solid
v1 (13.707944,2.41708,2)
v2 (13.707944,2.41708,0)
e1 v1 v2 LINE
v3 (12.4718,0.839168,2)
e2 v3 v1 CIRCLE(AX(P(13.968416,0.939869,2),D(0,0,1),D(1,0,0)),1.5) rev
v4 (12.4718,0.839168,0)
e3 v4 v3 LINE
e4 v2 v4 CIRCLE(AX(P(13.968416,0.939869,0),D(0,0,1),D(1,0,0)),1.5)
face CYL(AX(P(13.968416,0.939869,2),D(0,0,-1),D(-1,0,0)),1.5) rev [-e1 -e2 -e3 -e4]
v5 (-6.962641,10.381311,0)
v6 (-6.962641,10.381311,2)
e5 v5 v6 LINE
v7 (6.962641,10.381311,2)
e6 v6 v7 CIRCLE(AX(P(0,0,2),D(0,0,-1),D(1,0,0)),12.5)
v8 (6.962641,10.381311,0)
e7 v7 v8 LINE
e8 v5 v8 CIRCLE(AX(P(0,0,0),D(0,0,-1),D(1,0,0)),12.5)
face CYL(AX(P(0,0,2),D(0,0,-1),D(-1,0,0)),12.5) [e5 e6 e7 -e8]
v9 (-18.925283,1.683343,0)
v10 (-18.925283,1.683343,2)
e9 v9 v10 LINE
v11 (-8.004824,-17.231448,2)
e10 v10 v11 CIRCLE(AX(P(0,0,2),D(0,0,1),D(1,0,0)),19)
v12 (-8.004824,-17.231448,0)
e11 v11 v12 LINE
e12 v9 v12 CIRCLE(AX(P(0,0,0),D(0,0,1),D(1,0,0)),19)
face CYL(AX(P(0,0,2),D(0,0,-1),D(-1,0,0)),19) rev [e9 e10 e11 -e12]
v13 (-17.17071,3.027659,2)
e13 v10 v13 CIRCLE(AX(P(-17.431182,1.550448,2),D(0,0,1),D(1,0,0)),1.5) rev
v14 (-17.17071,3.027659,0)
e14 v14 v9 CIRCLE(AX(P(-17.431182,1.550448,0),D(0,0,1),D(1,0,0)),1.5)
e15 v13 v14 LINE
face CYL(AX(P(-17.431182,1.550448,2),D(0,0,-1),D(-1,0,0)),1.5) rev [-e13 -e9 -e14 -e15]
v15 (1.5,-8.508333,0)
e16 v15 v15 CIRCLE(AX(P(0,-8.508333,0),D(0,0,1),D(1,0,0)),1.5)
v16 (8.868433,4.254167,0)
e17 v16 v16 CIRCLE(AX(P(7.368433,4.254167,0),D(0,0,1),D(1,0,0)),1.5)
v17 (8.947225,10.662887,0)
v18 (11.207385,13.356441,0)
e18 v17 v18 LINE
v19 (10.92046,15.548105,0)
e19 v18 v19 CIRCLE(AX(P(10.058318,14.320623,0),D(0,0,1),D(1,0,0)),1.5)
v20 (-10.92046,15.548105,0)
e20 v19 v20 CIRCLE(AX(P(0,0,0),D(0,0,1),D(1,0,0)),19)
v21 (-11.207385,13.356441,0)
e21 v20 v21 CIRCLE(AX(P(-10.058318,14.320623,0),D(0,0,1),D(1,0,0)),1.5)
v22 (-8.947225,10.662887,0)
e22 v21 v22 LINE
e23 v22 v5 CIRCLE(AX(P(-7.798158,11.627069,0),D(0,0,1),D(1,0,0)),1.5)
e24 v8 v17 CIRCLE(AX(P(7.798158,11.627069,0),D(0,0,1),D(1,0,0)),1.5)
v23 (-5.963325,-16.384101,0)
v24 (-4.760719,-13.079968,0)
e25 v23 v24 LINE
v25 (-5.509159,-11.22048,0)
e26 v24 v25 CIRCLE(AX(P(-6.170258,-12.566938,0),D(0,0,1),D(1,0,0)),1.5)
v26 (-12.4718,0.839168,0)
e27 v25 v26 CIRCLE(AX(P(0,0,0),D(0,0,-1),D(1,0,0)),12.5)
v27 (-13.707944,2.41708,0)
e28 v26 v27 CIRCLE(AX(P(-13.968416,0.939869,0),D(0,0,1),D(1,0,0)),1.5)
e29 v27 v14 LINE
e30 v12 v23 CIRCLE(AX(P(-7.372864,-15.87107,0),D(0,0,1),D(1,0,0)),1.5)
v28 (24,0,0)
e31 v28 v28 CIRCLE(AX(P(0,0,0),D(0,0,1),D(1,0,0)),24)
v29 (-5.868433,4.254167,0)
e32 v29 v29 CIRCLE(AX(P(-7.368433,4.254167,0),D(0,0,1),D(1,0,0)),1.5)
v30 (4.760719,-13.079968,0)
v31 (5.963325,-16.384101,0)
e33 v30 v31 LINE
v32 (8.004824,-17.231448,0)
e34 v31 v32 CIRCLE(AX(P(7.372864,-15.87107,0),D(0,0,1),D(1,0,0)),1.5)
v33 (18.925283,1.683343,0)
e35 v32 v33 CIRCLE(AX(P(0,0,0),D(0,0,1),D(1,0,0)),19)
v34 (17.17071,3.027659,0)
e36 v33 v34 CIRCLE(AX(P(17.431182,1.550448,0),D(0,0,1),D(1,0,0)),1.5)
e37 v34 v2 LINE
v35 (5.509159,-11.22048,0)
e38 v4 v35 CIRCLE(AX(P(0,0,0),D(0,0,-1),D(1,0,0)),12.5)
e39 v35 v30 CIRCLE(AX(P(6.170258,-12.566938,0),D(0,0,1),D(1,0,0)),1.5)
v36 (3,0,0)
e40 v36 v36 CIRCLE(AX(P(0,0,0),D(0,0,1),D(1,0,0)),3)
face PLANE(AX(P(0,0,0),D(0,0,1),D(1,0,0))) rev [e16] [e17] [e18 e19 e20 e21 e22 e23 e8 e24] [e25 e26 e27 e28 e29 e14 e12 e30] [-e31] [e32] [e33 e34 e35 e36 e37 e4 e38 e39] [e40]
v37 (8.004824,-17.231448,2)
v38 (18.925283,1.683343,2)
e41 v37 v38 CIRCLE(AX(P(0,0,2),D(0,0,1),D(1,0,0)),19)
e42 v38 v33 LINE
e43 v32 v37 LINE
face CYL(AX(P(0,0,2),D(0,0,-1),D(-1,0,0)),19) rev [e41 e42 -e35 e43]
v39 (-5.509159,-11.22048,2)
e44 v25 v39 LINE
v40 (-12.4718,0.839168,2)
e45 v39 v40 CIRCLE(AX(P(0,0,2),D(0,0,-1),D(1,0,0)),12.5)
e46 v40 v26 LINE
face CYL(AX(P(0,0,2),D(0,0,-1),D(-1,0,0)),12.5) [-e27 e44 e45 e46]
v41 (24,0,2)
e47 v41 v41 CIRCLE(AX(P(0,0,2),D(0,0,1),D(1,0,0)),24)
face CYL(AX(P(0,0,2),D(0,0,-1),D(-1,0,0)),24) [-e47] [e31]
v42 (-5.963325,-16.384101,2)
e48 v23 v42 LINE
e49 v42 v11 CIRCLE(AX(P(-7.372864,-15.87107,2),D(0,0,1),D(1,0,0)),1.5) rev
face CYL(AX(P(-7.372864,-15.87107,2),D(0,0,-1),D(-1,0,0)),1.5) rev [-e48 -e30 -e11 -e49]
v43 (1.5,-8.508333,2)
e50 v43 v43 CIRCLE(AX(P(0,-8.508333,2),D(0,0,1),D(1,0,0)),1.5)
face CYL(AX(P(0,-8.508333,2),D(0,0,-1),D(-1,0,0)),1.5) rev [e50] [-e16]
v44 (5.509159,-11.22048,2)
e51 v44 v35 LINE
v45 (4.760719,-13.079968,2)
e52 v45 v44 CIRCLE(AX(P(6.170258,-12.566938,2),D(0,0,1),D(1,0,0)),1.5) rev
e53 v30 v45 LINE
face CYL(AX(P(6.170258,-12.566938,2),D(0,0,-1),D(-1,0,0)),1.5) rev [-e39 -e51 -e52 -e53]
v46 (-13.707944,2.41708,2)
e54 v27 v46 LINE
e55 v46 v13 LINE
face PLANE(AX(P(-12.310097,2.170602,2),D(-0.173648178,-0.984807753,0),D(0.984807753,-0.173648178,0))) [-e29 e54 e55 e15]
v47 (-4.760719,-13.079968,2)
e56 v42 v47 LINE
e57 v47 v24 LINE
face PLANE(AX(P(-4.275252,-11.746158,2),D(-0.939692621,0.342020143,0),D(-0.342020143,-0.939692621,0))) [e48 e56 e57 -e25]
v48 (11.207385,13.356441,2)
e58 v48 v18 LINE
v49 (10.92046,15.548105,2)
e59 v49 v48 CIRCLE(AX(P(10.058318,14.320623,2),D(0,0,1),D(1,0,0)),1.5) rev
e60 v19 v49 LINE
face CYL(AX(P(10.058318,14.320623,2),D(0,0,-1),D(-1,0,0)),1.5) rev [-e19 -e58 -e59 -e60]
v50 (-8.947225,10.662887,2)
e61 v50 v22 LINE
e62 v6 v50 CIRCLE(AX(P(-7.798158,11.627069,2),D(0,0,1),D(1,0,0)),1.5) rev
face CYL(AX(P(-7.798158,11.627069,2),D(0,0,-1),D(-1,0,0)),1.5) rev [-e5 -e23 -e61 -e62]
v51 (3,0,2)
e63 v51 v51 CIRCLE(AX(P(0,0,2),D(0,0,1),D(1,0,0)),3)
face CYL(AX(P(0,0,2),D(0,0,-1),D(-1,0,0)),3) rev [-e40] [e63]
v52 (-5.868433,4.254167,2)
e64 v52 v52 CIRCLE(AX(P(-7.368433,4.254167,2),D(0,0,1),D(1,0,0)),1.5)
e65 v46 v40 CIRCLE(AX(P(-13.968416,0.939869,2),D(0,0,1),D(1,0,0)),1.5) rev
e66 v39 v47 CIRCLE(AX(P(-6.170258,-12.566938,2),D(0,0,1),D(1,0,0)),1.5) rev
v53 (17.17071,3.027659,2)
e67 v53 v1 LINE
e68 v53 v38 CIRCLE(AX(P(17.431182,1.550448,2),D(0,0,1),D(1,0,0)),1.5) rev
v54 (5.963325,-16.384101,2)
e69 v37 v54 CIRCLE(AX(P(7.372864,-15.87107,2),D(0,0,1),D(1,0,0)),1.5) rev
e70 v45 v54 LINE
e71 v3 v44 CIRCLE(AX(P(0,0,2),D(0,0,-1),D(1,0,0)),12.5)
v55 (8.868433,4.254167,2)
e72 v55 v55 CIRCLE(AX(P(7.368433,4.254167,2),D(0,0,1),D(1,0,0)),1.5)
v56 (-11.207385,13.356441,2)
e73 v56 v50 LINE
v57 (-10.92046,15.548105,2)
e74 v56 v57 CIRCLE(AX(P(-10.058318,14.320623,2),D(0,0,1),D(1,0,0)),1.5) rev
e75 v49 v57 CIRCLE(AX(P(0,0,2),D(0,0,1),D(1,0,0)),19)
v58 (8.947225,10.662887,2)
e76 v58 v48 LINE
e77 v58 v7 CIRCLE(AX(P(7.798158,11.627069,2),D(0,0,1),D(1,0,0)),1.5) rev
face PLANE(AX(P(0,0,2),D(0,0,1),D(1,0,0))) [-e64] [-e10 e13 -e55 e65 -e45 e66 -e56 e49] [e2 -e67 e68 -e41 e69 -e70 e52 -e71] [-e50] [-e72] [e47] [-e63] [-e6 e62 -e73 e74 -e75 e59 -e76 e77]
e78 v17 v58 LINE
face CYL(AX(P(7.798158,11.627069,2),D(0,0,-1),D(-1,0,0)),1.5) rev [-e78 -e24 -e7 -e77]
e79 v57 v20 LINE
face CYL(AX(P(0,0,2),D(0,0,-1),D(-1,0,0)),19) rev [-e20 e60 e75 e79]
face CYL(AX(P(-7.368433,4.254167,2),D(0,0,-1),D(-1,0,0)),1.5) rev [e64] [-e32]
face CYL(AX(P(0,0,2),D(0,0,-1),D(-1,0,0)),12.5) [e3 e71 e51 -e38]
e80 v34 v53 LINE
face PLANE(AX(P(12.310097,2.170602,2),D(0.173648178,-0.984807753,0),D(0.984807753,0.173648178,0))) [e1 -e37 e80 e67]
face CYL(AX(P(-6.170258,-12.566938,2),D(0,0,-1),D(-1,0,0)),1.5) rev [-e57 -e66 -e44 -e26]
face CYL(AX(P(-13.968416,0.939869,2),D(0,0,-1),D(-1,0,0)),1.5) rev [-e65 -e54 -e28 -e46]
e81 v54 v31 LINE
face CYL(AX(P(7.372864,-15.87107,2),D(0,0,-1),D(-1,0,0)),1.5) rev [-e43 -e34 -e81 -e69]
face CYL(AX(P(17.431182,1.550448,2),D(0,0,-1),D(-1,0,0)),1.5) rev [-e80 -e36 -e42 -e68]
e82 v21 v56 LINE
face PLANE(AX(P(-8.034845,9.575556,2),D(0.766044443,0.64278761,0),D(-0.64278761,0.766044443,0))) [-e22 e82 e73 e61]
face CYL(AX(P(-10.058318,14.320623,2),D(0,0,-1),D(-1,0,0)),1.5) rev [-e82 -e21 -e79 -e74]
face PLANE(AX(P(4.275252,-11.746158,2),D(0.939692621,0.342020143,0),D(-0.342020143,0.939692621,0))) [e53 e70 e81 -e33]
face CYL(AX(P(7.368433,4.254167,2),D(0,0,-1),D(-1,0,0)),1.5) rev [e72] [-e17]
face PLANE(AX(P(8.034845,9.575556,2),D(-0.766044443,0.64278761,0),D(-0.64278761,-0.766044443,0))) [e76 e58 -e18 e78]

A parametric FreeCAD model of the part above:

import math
import FreeCAD as App
import Part
import Sketcher

V = App.Vector
Q = App.Units.Quantity


def edges_at(feature, points):
    """Names of the edges that pass closest to the given points."""
    edges = feature.Shape.Edges
    near = lambda p: min(range(len(edges)), key=lambda i: edges[i].distToShape(Part.Vertex(*p))[0])
    return sorted({f"Edge{near(p) + 1}" for p in points})

doc = App.newDocument("Part")
body = doc.addObject("PartDesign::Body", "Body")

# Sketch on XY plane
sketch1 = body.newObject("Sketcher::SketchObject", "Sketch")
sketch1.AttachmentSupport = (doc.getObject("XY_Plane"), [""])
sketch1.MapMode = "FlatFace"
sketch1.addGeometry(Part.Circle(V(0, 0, 0), V(0, 0, 1), 24), False)
sketch1.addGeometry(Part.ArcOfCircle(Part.Circle(V(0, 0, 0), V(0, 0, 1), 12.5), math.radians(170), math.radians(250)), False)
sketch1.addGeometry(Part.LineSegment(V(-4.275252, -11.746158, 0), V(-6.498383, -17.85416, 0)), False)
sketch1.addGeometry(Part.ArcOfCircle(Part.Circle(V(0, 0, 0), V(0, 0, 1), 19), math.radians(170), math.radians(250)), False)
sketch1.addGeometry(Part.LineSegment(V(-18.711347, 3.299315, 0), V(-12.310097, 2.170602, 0)), False)
sketch1.addGeometry(Part.Circle(V(0, -8.508333, 0), V(0, 0, 1), 1.5), False)
sketch1.addGeometry(Part.Circle(V(0, 0, 0), V(0, 0, 1), 3), False)
sketch1.addGeometry(Part.ArcOfCircle(Part.Circle(V(0, 0, 0), V(0, 0, 1), 12.5), math.radians(-70), math.radians(10)), False)
sketch1.addGeometry(Part.LineSegment(V(12.310097, 2.170602, 0), V(18.711347, 3.299315, 0)), False)
sketch1.addGeometry(Part.ArcOfCircle(Part.Circle(V(0, 0, 0), V(0, 0, 1), 19), math.radians(-70), math.radians(10)), False)
sketch1.addGeometry(Part.LineSegment(V(6.498383, -17.85416, 0), V(4.275252, -11.746158, 0)), False)
sketch1.addGeometry(Part.Circle(V(-7.368433, 4.254167, 0), V(0, 0, 1), 1.5), False)
sketch1.addGeometry(Part.Circle(V(7.368433, 4.254167, 0), V(0, 0, 1), 1.5), False)
sketch1.addGeometry(Part.LineSegment(V(12.212965, 14.554844, 0), V(8.034845, 9.575556, 0)), False)
sketch1.addGeometry(Part.ArcOfCircle(Part.Circle(V(0, 0, 0), V(0, 0, 1), 12.5), math.radians(50), math.radians(130)), False)
sketch1.addGeometry(Part.LineSegment(V(-8.034845, 9.575556, 0), V(-12.212965, 14.554844, 0)), False)
sketch1.addGeometry(Part.ArcOfCircle(Part.Circle(V(0, 0, 0), V(0, 0, 1), 19), math.radians(50), math.radians(130)), False)
sketch1.addConstraint(Sketcher.Constraint("Coincident", 1, 2, 2, 1))
sketch1.addConstraint(Sketcher.Constraint("Coincident", 2, 2, 3, 2))
sketch1.addConstraint(Sketcher.Constraint("Coincident", 3, 1, 4, 1))
sketch1.addConstraint(Sketcher.Constraint("Coincident", 4, 2, 1, 1))
sketch1.addConstraint(Sketcher.Constraint("Coincident", 7, 2, 8, 1))
sketch1.addConstraint(Sketcher.Constraint("Coincident", 8, 2, 9, 2))
sketch1.addConstraint(Sketcher.Constraint("Coincident", 9, 1, 10, 1))
sketch1.addConstraint(Sketcher.Constraint("Coincident", 10, 2, 7, 1))
sketch1.addConstraint(Sketcher.Constraint("Coincident", 13, 2, 14, 1))
sketch1.addConstraint(Sketcher.Constraint("Coincident", 14, 2, 15, 1))
sketch1.addConstraint(Sketcher.Constraint("Coincident", 15, 2, 16, 2))
sketch1.addConstraint(Sketcher.Constraint("Coincident", 16, 1, 13, 1))
sketch1.addConstraint(Sketcher.Constraint("Coincident", 0, 3, -1, 1))
sketch1.addConstraint(Sketcher.Constraint("Coincident", 1, 3, -1, 1))
sketch1.addConstraint(Sketcher.Constraint("Coincident", 3, 3, -1, 1))
sketch1.addConstraint(Sketcher.Constraint("Coincident", 6, 3, -1, 1))
sketch1.addConstraint(Sketcher.Constraint("Coincident", 7, 3, -1, 1))
sketch1.addConstraint(Sketcher.Constraint("Coincident", 9, 3, -1, 1))
sketch1.addConstraint(Sketcher.Constraint("Coincident", 14, 3, -1, 1))
sketch1.addConstraint(Sketcher.Constraint("Coincident", 16, 3, -1, 1))
sketch1.addConstraint(Sketcher.Constraint("Equal", 1, 7))
sketch1.addConstraint(Sketcher.Constraint("Equal", 3, 9))
sketch1.addConstraint(Sketcher.Constraint("Equal", 5, 11))
sketch1.addConstraint(Sketcher.Constraint("Equal", 11, 12))
sketch1.addConstraint(Sketcher.Constraint("Equal", 7, 14))
sketch1.addConstraint(Sketcher.Constraint("Equal", 9, 16))
sketch1.addConstraint(Sketcher.Constraint("Symmetric", 11, 3, 12, 3, -2))
sketch1.addConstraint(Sketcher.Constraint("PointOnObject", 5, 3, -2))
sketch1.addConstraint(Sketcher.Constraint("Horizontal", 4, 2, 7, 2))
sketch1.addConstraint(Sketcher.Constraint("Horizontal", 3, 1, 8, 2))
sketch1.addConstraint(Sketcher.Constraint("Horizontal", 2, 2, 9, 1))
sketch1.addConstraint(Sketcher.Constraint("Horizontal", 1, 2, 10, 2))
sketch1.addConstraint(Sketcher.Constraint("Horizontal", 13, 2, 14, 2))
sketch1.addConstraint(Sketcher.Constraint("Horizontal", 15, 2, 16, 1))
sketch1.addConstraint(Sketcher.Constraint("Diameter", 0, 48.0))
sketch1.addConstraint(Sketcher.Constraint("Diameter", 5, 3.0))
sketch1.addConstraint(Sketcher.Constraint("Diameter", 6, 6.0))
sketch1.addConstraint(Sketcher.Constraint("Radius", 3, 19.0))
sketch1.addConstraint(Sketcher.Constraint("Radius", 1, 12.5))
sketch1.addConstraint(Sketcher.Constraint("Angle", 2, Q("-110 deg")))
sketch1.addConstraint(Sketcher.Constraint("Angle", 4, Q("-10 deg")))
sketch1.addConstraint(Sketcher.Constraint("Angle", 13, Q("-130 deg")))
sketch1.addConstraint(Sketcher.Constraint("DistanceX", 1, 2, -1, 1, 4.275252))
sketch1.addConstraint(Sketcher.Constraint("DistanceY", 3, 1, 11, 3, 0.954851))
sketch1.addConstraint(Sketcher.Constraint("DistanceY", 12, 3, 13, 2, 5.321389))
sketch1.addConstraint(Sketcher.Constraint("DistanceX", 13, 2, 7, 2, 4.275252))
sketch1.addConstraint(Sketcher.Constraint("DistanceY", 5, 3, -1, 1, 8.508333))
sketch1.addConstraint(Sketcher.Constraint("DistanceX", 11, 3, -1, 1, 7.368433))
pad1 = body.newObject("PartDesign::Pad", "Pad")
pad1.Profile = sketch1
pad1.Length = 2
doc.recompute()

fillet = body.newObject("PartDesign::Fillet", "Fillet")
fillet.Base = (pad1, edges_at(pad1, [
    (-8.035, 9.576, 1),
    (8.035, 9.576, 1),
    (12.213, 14.555, 1),
    (-12.213, 14.555, 1),
    (12.31, 2.171, 1),
    (4.275, -11.746, 1),
    (6.498, -17.854, 1),
    (18.711, 3.299, 1),
    (-4.275, -11.746, 1),
    (-12.31, 2.171, 1),
    (-18.711, 3.299, 1),
    (-6.498, -17.854, 1),
]))
fillet.Radius = 1.5

doc.recompute()
